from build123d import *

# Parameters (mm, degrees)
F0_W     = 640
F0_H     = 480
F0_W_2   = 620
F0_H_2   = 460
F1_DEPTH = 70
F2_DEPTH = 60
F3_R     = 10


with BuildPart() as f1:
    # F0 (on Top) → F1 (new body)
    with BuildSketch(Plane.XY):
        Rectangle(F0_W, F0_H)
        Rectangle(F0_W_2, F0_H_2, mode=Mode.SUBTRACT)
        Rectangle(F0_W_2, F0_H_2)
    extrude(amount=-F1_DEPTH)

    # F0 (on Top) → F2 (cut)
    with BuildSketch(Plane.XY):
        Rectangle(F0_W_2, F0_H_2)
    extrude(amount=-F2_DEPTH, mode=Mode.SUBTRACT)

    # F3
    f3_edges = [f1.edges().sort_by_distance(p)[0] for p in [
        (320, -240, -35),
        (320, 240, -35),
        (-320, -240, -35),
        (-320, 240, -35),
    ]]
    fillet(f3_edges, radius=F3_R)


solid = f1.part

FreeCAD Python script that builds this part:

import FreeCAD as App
import Part
import Sketcher
from FreeCAD import Vector


def edges_at(feature, points):
    """Names of the edges that pass closest to the given points."""
    edges = feature.Shape.Edges
    near = lambda p: min(range(len(edges)), key=lambda i: edges[i].distToShape(Part.Vertex(*p))[0])
    return sorted({f"Edge{near(p) + 1}" for p in points})

doc = App.newDocument("Part")
body = doc.addObject("PartDesign::Body", "Body")

# Sketch on XY plane
sketch1 = body.newObject("Sketcher::SketchObject", "Sketch")
sketch1.AttachmentSupport = (doc.getObject("XY_Plane"), [""])
sketch1.MapMode = "FlatFace"
sketch1.addGeometry(Part.LineSegment(Vector(-320, 240, 0), Vector(-320, -240, 0)), False)
sketch1.addGeometry(Part.LineSegment(Vector(-320, -240, 0), Vector(320, -240, 0)), False)
sketch1.addGeometry(Part.LineSegment(Vector(320, -240, 0), Vector(320, 240, 0)), False)
sketch1.addGeometry(Part.LineSegment(Vector(320, 240, 0), Vector(-320, 240, 0)), False)
sketch1.addConstraint(Sketcher.Constraint("Coincident", 0, 2, 1, 1))
sketch1.addConstraint(Sketcher.Constraint("Coincident", 1, 2, 2, 1))
sketch1.addConstraint(Sketcher.Constraint("Coincident", 2, 2, 3, 1))
sketch1.addConstraint(Sketcher.Constraint("Coincident", 3, 2, 0, 1))
sketch1.addConstraint(Sketcher.Constraint("Vertical", 0))
sketch1.addConstraint(Sketcher.Constraint("Horizontal", 1))
sketch1.addConstraint(Sketcher.Constraint("Vertical", 2))
sketch1.addConstraint(Sketcher.Constraint("Horizontal", 3))
sketch1.addConstraint(Sketcher.Constraint("Symmetric", 0, 2, 2, 2, -1, 1))
sketch1.addConstraint(Sketcher.Constraint("DistanceX", 1, 1, 1, 2, 640.0))
sketch1.addConstraint(Sketcher.Constraint("DistanceY", 0, 2, 0, 1, 480.0))
pad1 = body.newObject("PartDesign::Pad", "Pad")
pad1.Profile = sketch1
pad1.Length = 70
pad1.Reversed = True

# Sketch on XY plane
sketch2 = body.newObject("Sketcher::SketchObject", "Sketch001")
sketch2.AttachmentSupport = (doc.getObject("XY_Plane"), [""])
sketch2.MapMode = "FlatFace"
sketch2.addGeometry(Part.LineSegment(Vector(-310, 230, 0), Vector(-310, -230, 0)), False)
sketch2.addGeometry(Part.LineSegment(Vector(-310, -230, 0), Vector(310, -230, 0)), False)
sketch2.addGeometry(Part.LineSegment(Vector(310, -230, 0), Vector(310, 230, 0)), False)
sketch2.addGeometry(Part.LineSegment(Vector(310, 230, 0), Vector(-310, 230, 0)), False)
sketch2.addConstraint(Sketcher.Constraint("Coincident", 0, 2, 1, 1))
sketch2.addConstraint(Sketcher.Constraint("Coincident", 1, 2, 2, 1))
sketch2.addConstraint(Sketcher.Constraint("Coincident", 2, 2, 3, 1))
sketch2.addConstraint(Sketcher.Constraint("Coincident", 3, 2, 0, 1))
sketch2.addConstraint(Sketcher.Constraint("Vertical", 0))
sketch2.addConstraint(Sketcher.Constraint("Horizontal", 1))
sketch2.addConstraint(Sketcher.Constraint("Vertical", 2))
sketch2.addConstraint(Sketcher.Constraint("Horizontal", 3))
sketch2.addConstraint(Sketcher.Constraint("Symmetric", 0, 2, 2, 2, -1, 1))
sketch2.addConstraint(Sketcher.Constraint("DistanceX", 1, 1, 1, 2, 620.0))
sketch2.addConstraint(Sketcher.Constraint("DistanceY", 0, 2, 0, 1, 460.0))
pocket1 = body.newObject("PartDesign::Pocket", "Pocket")
pocket1.Profile = sketch2
pocket1.Length = 60
doc.recompute()

fillet = body.newObject("PartDesign::Fillet", "Fillet")
fillet.Base = (pocket1, edges_at(pocket1, [
    (320, -240, -35),
    (320, 240, -35),
    (-320, -240, -35),
    (-320, 240, -35),
]))
fillet.Radius = 10

doc.recompute()
